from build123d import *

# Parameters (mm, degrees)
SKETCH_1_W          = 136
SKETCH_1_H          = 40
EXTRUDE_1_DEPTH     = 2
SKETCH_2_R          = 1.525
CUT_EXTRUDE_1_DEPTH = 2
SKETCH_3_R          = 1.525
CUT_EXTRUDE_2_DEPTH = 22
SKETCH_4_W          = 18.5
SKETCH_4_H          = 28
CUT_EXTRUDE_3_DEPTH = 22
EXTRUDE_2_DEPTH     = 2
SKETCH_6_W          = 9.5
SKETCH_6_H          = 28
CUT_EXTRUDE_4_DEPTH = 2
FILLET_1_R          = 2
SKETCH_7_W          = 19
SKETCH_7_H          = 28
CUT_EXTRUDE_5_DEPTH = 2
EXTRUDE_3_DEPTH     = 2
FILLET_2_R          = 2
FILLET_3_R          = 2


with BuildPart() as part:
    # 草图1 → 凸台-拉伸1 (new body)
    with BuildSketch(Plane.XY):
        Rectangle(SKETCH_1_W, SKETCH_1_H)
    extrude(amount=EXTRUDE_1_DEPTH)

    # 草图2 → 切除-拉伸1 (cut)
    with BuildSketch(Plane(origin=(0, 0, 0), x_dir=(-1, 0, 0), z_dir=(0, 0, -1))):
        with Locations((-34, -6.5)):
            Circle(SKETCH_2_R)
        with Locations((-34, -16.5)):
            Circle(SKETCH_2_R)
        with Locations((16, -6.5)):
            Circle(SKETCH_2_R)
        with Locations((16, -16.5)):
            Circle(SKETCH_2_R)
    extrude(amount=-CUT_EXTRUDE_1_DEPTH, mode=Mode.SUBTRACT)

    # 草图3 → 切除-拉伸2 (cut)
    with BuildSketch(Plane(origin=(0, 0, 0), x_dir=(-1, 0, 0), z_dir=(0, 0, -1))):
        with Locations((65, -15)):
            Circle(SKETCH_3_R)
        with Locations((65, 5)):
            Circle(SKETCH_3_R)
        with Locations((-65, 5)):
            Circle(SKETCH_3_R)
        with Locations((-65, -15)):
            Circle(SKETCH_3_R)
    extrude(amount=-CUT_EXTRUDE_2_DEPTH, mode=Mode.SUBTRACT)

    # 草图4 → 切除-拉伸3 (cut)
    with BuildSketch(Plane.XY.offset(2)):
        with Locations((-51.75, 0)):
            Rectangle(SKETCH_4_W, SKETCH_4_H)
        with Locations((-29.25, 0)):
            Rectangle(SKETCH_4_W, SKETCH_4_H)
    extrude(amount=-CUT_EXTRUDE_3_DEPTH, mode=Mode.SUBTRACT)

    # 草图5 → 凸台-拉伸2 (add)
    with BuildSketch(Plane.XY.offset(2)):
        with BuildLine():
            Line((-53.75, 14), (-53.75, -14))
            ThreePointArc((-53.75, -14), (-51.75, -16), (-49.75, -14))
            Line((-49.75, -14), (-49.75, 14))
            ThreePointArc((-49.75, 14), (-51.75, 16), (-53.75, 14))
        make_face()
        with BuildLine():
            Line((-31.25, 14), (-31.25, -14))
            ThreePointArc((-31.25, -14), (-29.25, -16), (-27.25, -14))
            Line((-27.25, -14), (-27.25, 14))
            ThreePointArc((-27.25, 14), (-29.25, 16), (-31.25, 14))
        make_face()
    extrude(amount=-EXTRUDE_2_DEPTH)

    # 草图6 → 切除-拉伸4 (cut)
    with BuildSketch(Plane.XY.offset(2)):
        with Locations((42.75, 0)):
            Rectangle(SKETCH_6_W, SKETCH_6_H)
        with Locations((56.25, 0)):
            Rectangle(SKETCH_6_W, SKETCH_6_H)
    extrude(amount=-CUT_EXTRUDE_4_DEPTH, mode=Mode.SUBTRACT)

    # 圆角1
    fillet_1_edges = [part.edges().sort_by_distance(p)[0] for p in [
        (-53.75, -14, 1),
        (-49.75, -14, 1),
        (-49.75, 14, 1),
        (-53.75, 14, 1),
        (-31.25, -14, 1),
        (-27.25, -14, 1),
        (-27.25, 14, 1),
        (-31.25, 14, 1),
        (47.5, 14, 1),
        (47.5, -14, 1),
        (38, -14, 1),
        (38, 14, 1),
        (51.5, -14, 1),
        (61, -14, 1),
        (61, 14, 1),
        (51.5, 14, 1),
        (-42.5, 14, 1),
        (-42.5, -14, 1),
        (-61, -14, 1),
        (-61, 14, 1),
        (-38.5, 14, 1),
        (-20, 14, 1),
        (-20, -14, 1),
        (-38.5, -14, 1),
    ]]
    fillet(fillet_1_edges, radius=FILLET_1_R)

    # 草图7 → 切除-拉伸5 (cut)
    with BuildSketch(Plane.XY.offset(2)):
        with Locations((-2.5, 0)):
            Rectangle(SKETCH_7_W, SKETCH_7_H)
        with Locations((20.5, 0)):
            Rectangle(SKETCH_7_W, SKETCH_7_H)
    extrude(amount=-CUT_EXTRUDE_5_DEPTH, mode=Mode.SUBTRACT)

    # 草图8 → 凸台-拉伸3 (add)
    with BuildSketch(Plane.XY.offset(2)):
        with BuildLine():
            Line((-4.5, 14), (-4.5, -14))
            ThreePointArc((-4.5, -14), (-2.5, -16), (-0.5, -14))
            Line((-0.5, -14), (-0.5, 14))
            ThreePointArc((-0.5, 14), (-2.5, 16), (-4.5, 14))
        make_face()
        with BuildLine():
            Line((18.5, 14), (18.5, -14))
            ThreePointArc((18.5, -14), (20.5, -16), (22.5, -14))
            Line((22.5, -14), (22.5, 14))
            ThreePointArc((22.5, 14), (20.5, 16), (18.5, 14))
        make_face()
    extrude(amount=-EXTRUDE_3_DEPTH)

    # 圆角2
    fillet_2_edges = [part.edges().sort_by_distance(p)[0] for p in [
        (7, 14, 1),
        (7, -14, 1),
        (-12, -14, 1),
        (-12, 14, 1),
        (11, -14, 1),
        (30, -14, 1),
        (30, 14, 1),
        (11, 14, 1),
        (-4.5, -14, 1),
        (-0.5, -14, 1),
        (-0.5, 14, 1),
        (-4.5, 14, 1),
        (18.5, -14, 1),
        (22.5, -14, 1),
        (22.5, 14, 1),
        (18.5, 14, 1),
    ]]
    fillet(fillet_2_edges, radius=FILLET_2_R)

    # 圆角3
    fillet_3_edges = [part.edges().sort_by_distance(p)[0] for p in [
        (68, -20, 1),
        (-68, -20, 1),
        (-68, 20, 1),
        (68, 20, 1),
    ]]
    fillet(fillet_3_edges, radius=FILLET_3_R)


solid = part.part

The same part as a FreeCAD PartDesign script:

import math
import FreeCAD as App
import Part
import Sketcher

V = App.Vector
Q = App.Units.Quantity


def edges_at(feature, points):
    """Names of the edges that pass closest to the given points."""
    edges = feature.Shape.Edges
    near = lambda p: min(range(len(edges)), key=lambda i: edges[i].distToShape(Part.Vertex(*p))[0])
    return sorted({f"Edge{near(p) + 1}" for p in points})

doc = App.newDocument("Part")
params = doc.addObject("Spreadsheet::Sheet", "Params")
for row, (alias, value) in enumerate([
    ("sketch1_width", "136 mm"),
    ("sketch1_height", "40 mm"),
    ("pad1_length", "2 mm"),
    ("sketch2_diameter", "3.05 mm"),
    ("pocket1_length", "2 mm"),
    ("sketch3_diameter", "3.05 mm"),
    ("pocket2_length", "22 mm"),
    ("sketch4_height", "28 mm"),
    ("sketch4_width", "18.5 mm"),
    ("pocket3_length", "22 mm"),
    ("sketch5_radius", "2 mm"),
    ("sketch5_height", "28 mm"),
    ("pad2_length", "2 mm"),
    ("sketch6_height", "28 mm"),
    ("sketch6_width", "9.5 mm"),
    ("pocket4_length", "2 mm"),
    ("fillet_radius", "2 mm"),
    ("sketch7_width", "19 mm"),
    ("sketch7_height", "28 mm"),
    ("pocket5_length", "2 mm"),
    ("sketch8_radius", "2 mm"),
    ("sketch8_height", "28 mm"),
    ("pad3_length", "2 mm"),
    ("fillet2_radius", "2 mm"),
    ("fillet3_radius", "2 mm"),
], start=1):
    params.set(f"A{row}", alias)
    params.set(f"B{row}", "=" + value)
    params.setAlias(f"B{row}", alias)

body = doc.addObject("PartDesign::Body", "Body")

sketch1 = body.newObject("Sketcher::SketchObject", "Sketch")
sketch1.AttachmentSupport = (doc.getObject("XY_Plane"), [""])
sketch1.MapMode = "FlatFace"
sketch1.addGeometry([
    Part.LineSegment(V(-68, 20, 0), V(-68, -20, 0)),
    Part.LineSegment(V(-68, -20, 0), V(68, -20, 0)),
    Part.LineSegment(V(68, -20, 0), V(68, 20, 0)),
    Part.LineSegment(V(68, 20, 0), V(-68, 20, 0)),
], False)
sketch1.addConstraint([
    Sketcher.Constraint("Coincident", 0, 2, 1, 1),
    Sketcher.Constraint("Coincident", 1, 2, 2, 1),
    Sketcher.Constraint("Coincident", 2, 2, 3, 1),
    Sketcher.Constraint("Coincident", 3, 2, 0, 1),
    Sketcher.Constraint("Vertical", 0),
    Sketcher.Constraint("Horizontal", 1),
    Sketcher.Constraint("Vertical", 2),
    Sketcher.Constraint("Horizontal", 3),
    Sketcher.Constraint("Symmetric", 0, 2, 2, 2, -1, 1),
    Sketcher.Constraint("DistanceX", 1, 1, 1, 2, Q("136 mm")),
    Sketcher.Constraint("DistanceY", 0, 2, 0, 1, Q("40 mm")),
])
sketch1.setExpression("Constraints[9]", "Params.sketch1_width")
sketch1.setExpression("Constraints[10]", "Params.sketch1_height")
pad1 = body.newObject("PartDesign::Pad", "Pad")
pad1.Profile = sketch1
pad1.setExpression("Length", "Params.pad1_length")

sketch2 = body.newObject("Sketcher::SketchObject", "Sketch001")
sketch2.AttachmentSupport = (doc.getObject("XY_Plane"), [""])
sketch2.MapMode = "FlatFace"
sketch2.addGeometry([
    Part.Circle(V(34, -6.5, 0), V(0, 0, 1), 1.525),
    Part.Circle(V(34, -16.5, 0), V(0, 0, 1), 1.525),
    Part.Circle(V(-16, -6.5, 0), V(0, 0, 1), 1.525),
    Part.Circle(V(-16, -16.5, 0), V(0, 0, 1), 1.525),
], False)
sketch2.addConstraint([
    Sketcher.Constraint("Equal", 0, 1),
    Sketcher.Constraint("Equal", 1, 2),
    Sketcher.Constraint("Equal", 2, 3),
    Sketcher.Constraint("Horizontal", 0, 3, 2, 3),
    Sketcher.Constraint("Horizontal", 1, 3, 3, 3),
    Sketcher.Constraint("Vertical", 0, 3, 1, 3),
    Sketcher.Constraint("Vertical", 2, 3, 3, 3),
    Sketcher.Constraint("Diameter", 0, Q("3.05 mm")),
    Sketcher.Constraint("DistanceX", -1, 1, 0, 3, Q("34 mm")),
    Sketcher.Constraint("DistanceX", 2, 3, -1, 1, Q("16 mm")),
    Sketcher.Constraint("DistanceY", 1, 3, 0, 3, Q("10 mm")),
    Sketcher.Constraint("DistanceY", 0, 3, -1, 1, Q("6.5 mm")),
])
sketch2.setExpression("Constraints[7]", "Params.sketch2_diameter")
pocket1 = body.newObject("PartDesign::Pocket", "Pocket")
pocket1.Profile = sketch2
pocket1.setExpression("Length", "Params.pocket1_length")
pocket1.Reversed = True

sketch3 = body.newObject("Sketcher::SketchObject", "Sketch002")
sketch3.AttachmentSupport = (doc.getObject("XY_Plane"), [""])
sketch3.MapMode = "FlatFace"
sketch3.addGeometry([
    Part.Circle(V(-65, -15, 0), V(0, 0, 1), 1.525),
    Part.Circle(V(-65, 5, 0), V(0, 0, 1), 1.525),
    Part.Circle(V(65, 5, 0), V(0, 0, 1), 1.525),
    Part.Circle(V(65, -15, 0), V(0, 0, 1), 1.525),
], False)
sketch3.addConstraint([
    Sketcher.Constraint("Equal", 0, 1),
    Sketcher.Constraint("Equal", 1, 2),
    Sketcher.Constraint("Equal", 2, 3),
    Sketcher.Constraint("Symmetric", 1, 3, 2, 3, -2),
    Sketcher.Constraint("Symmetric", 0, 3, 3, 3, -2),
    Sketcher.Constraint("Vertical", 0, 3, 1, 3),
    Sketcher.Constraint("Diameter", 0, Q("3.05 mm")),
    Sketcher.Constraint("DistanceX", 0, 3, -1, 1, Q("65 mm")),
    Sketcher.Constraint("DistanceY", 0, 3, -1, 1, Q("15 mm")),
    Sketcher.Constraint("DistanceY", -1, 1, 1, 3, Q("5 mm")),
])
sketch3.setExpression("Constraints[6]", "Params.sketch3_diameter")
pocket2 = body.newObject("PartDesign::Pocket", "Pocket001")
pocket2.Profile = sketch3
pocket2.setExpression("Length", "Params.pocket2_length")
pocket2.Reversed = True

sketch4 = body.newObject("Sketcher::SketchObject", "Sketch003")
sketch4.AttachmentSupport = (doc.getObject("XY_Plane"), [""])
sketch4.MapMode = "FlatFace"
sketch4.AttachmentOffset = App.Placement(V(0, 0, 2), App.Rotation())
sketch4.addGeometry([
    Part.LineSegment(V(-61, 14, 0), V(-61, -14, 0)),
    Part.LineSegment(V(-61, -14, 0), V(-42.5, -14, 0)),
    Part.LineSegment(V(-42.5, -14, 0), V(-42.5, 14, 0)),
    Part.LineSegment(V(-42.5, 14, 0), V(-61, 14, 0)),
    Part.LineSegment(V(-38.5, 14, 0), V(-38.5, -14, 0)),
    Part.LineSegment(V(-38.5, -14, 0), V(-20, -14, 0)),
    Part.LineSegment(V(-20, -14, 0), V(-20, 14, 0)),
    Part.LineSegment(V(-20, 14, 0), V(-38.5, 14, 0)),
], False)
sketch4.addConstraint([
    Sketcher.Constraint("Coincident", 0, 2, 1, 1),
    Sketcher.Constraint("Coincident", 1, 2, 2, 1),
    Sketcher.Constraint("Coincident", 2, 2, 3, 1),
    Sketcher.Constraint("Coincident", 3, 2, 0, 1),
    Sketcher.Constraint("Coincident", 4, 2, 5, 1),
    Sketcher.Constraint("Coincident", 5, 2, 6, 1),
    Sketcher.Constraint("Coincident", 6, 2, 7, 1),
    Sketcher.Constraint("Coincident", 7, 2, 4, 1),
    Sketcher.Constraint("Vertical", 0),
    Sketcher.Constraint("Horizontal", 1),
    Sketcher.Constraint("Vertical", 2),
    Sketcher.Constraint("Horizontal", 3),
    Sketcher.Constraint("Vertical", 4),
    Sketcher.Constraint("Horizontal", 5),
    Sketcher.Constraint("Vertical", 6),
    Sketcher.Constraint("Horizontal", 7),
    Sketcher.Constraint("Horizontal", 1, 2, 4, 2),
    Sketcher.Constraint("Horizontal", 3, 2, 6, 2),
    Sketcher.Constraint("Equal", 3, 5),
    Sketcher.Constraint("DistanceY", 0, 2, 0, 1, Q("28 mm")),
    Sketcher.Constraint("DistanceX", 1, 1, 1, 2, Q("18.5 mm")),
    Sketcher.Constraint("DistanceX", 0, 2, -1, 1, Q("61 mm")),
    Sketcher.Constraint("DistanceY", 0, 2, -1, 1, Q("14 mm")),
    Sketcher.Constraint("DistanceX", 5, 2, -1, 1, Q("20 mm")),
])
sketch4.setExpression("Constraints[19]", "Params.sketch4_height")
sketch4.setExpression("Constraints[20]", "Params.sketch4_width")
pocket3 = body.newObject("PartDesign::Pocket", "Pocket002")
pocket3.Profile = sketch4
pocket3.setExpression("Length", "Params.pocket3_length")

sketch5 = body.newObject("Sketcher::SketchObject", "Sketch004")
sketch5.AttachmentSupport = (doc.getObject("XY_Plane"), [""])
sketch5.MapMode = "FlatFace"
sketch5.AttachmentOffset = App.Placement(V(0, 0, 2), App.Rotation())
sketch5.addGeometry([
    Part.LineSegment(V(-53.75, 14, 0), V(-53.75, -14, 0)),
    Part.ArcOfCircle(Part.Circle(V(-51.75, -14, 0), V(0, 0, 1), 2), math.radians(180), math.radians(360)),
    Part.LineSegment(V(-49.75, -14, 0), V(-49.75, 14, 0)),
    Part.ArcOfCircle(Part.Circle(V(-51.75, 14, 0), V(0, 0, 1), 2), math.radians(0), math.radians(180)),
    Part.LineSegment(V(-31.25, 14, 0), V(-31.25, -14, 0)),
    Part.ArcOfCircle(Part.Circle(V(-29.25, -14, 0), V(0, 0, 1), 2), math.radians(180), math.radians(360)),
    Part.LineSegment(V(-27.25, -14, 0), V(-27.25, 14, 0)),
    Part.ArcOfCircle(Part.Circle(V(-29.25, 14, 0), V(0, 0, 1), 2), math.radians(0), math.radians(180)),
], False)
sketch5.addConstraint([
    Sketcher.Constraint("Tangent", 0, 2, 1, 1),
    Sketcher.Constraint("Tangent", 1, 2, 2, 1),
    Sketcher.Constraint("Tangent", 2, 2, 3, 1),
    Sketcher.Constraint("Tangent", 3, 2, 0, 1),
    Sketcher.Constraint("Tangent", 4, 2, 5, 1),
    Sketcher.Constraint("Tangent", 5, 2, 6, 1),
    Sketcher.Constraint("Tangent", 6, 2, 7, 1),
    Sketcher.Constraint("Tangent", 7, 2, 4, 1),
    Sketcher.Constraint("Vertical", 0),
    Sketcher.Constraint("Vertical", 2),
    Sketcher.Constraint("Vertical", 4),
    Sketcher.Constraint("Vertical", 6),
    Sketcher.Constraint("Equal", 3, 5),
    Sketcher.Constraint("Horizontal", 1, 3, 5, 3),
    Sketcher.Constraint("Horizontal", 3, 3, 7, 3),
    Sketcher.Constraint("Radius", 1, Q("2 mm")),
    Sketcher.Constraint("DistanceY", 0, 2, 0, 1, Q("28 mm")),
    Sketcher.Constraint("DistanceY", 1, 3, -1, 1, Q("14 mm")),
    Sketcher.Constraint("DistanceX", 1, 3, 5, 3, Q("22.5 mm")),
    Sketcher.Constraint("DistanceX", 1, 3, -1, 1, Q("51.75 mm")),
])
sketch5.setExpression("Constraints[15]", "Params.sketch5_radius")
sketch5.setExpression("Constraints[16]", "Params.sketch5_height")
pad2 = body.newObject("PartDesign::Pad", "Pad001")
pad2.Profile = sketch5
pad2.setExpression("Length", "Params.pad2_length")
pad2.Reversed = True

sketch6 = body.newObject("Sketcher::SketchObject", "Sketch005")
sketch6.AttachmentSupport = (doc.getObject("XY_Plane"), [""])
sketch6.MapMode = "FlatFace"
sketch6.AttachmentOffset = App.Placement(V(0, 0, 2), App.Rotation())
sketch6.addGeometry([
    Part.LineSegment(V(38, 14, 0), V(38, -14, 0)),
    Part.LineSegment(V(38, -14, 0), V(47.5, -14, 0)),
    Part.LineSegment(V(47.5, -14, 0), V(47.5, 14, 0)),
    Part.LineSegment(V(47.5, 14, 0), V(38, 14, 0)),
    Part.LineSegment(V(51.5, 14, 0), V(51.5, -14, 0)),
    Part.LineSegment(V(51.5, -14, 0), V(61, -14, 0)),
    Part.LineSegment(V(61, -14, 0), V(61, 14, 0)),
    Part.LineSegment(V(61, 14, 0), V(51.5, 14, 0)),
], False)
sketch6.addConstraint([
    Sketcher.Constraint("Coincident", 0, 2, 1, 1),
    Sketcher.Constraint("Coincident", 1, 2, 2, 1),
    Sketcher.Constraint("Coincident", 2, 2, 3, 1),
    Sketcher.Constraint("Coincident", 3, 2, 0, 1),
    Sketcher.Constraint("Coincident", 4, 2, 5, 1),
    Sketcher.Constraint("Coincident", 5, 2, 6, 1),
    Sketcher.Constraint("Coincident", 6, 2, 7, 1),
    Sketcher.Constraint("Coincident", 7, 2, 4, 1),
    Sketcher.Constraint("Vertical", 0),
    Sketcher.Constraint("Horizontal", 1),
    Sketcher.Constraint("Vertical", 2),
    Sketcher.Constraint("Horizontal", 3),
    Sketcher.Constraint("Vertical", 4),
    Sketcher.Constraint("Horizontal", 5),
    Sketcher.Constraint("Vertical", 6),
    Sketcher.Constraint("Horizontal", 7),
    Sketcher.Constraint("Horizontal", 1, 2, 4, 2),
    Sketcher.Constraint("Horizontal", 3, 2, 6, 2),
    Sketcher.Constraint("Equal", 3, 5),
    Sketcher.Constraint("DistanceY", 0, 2, 0, 1, Q("28 mm")),
    Sketcher.Constraint("DistanceX", 1, 1, 1, 2, Q("9.5 mm")),
    Sketcher.Constraint("DistanceX", -1, 1, 0, 2, Q("38 mm")),
    Sketcher.Constraint("DistanceY", 0, 2, -1, 1, Q("14 mm")),
    Sketcher.Constraint("DistanceX", -1, 1, 5, 2, Q("61 mm")),
])
sketch6.setExpression("Constraints[19]", "Params.sketch6_height")
sketch6.setExpression("Constraints[20]", "Params.sketch6_width")
pocket4 = body.newObject("PartDesign::Pocket", "Pocket003")
pocket4.Profile = sketch6
pocket4.setExpression("Length", "Params.pocket4_length")
doc.recompute()

fillet = body.newObject("PartDesign::Fillet", "Fillet")
fillet.Base = (pocket4, edges_at(pocket4, [
    (-53.75, -14, 1),
    (-49.75, -14, 1),
    (-49.75, 14, 1),
    (-53.75, 14, 1),
    (-31.25, -14, 1),
    (-27.25, -14, 1),
    (-27.25, 14, 1),
    (-31.25, 14, 1),
    (47.5, 14, 1),
    (47.5, -14, 1),
    (38, -14, 1),
    (38, 14, 1),
    (51.5, -14, 1),
    (61, -14, 1),
    (61, 14, 1),
    (51.5, 14, 1),
    (-42.5, 14, 1),
    (-42.5, -14, 1),
    (-61, -14, 1),
    (-61, 14, 1),
    (-38.5, 14, 1),
    (-20, 14, 1),
    (-20, -14, 1),
    (-38.5, -14, 1),
]))
fillet.setExpression("Radius", "Params.fillet_radius")

sketch7 = body.newObject("Sketcher::SketchObject", "Sketch006")
sketch7.AttachmentSupport = (doc.getObject("XY_Plane"), [""])
sketch7.MapMode = "FlatFace"
sketch7.AttachmentOffset = App.Placement(V(0, 0, 2), App.Rotation())
sketch7.addGeometry([
    Part.LineSegment(V(-12, 14, 0), V(-12, -14, 0)),
    Part.LineSegment(V(-12, -14, 0), V(7, -14, 0)),
    Part.LineSegment(V(7, -14, 0), V(7, 14, 0)),
    Part.LineSegment(V(7, 14, 0), V(-12, 14, 0)),
    Part.LineSegment(V(11, 14, 0), V(11, -14, 0)),
    Part.LineSegment(V(11, -14, 0), V(30, -14, 0)),
    Part.LineSegment(V(30, -14, 0), V(30, 14, 0)),
    Part.LineSegment(V(30, 14, 0), V(11, 14, 0)),
], False)
sketch7.addConstraint([
    Sketcher.Constraint("Coincident", 0, 2, 1, 1),
    Sketcher.Constraint("Coincident", 1, 2, 2, 1),
    Sketcher.Constraint("Coincident", 2, 2, 3, 1),
    Sketcher.Constraint("Coincident", 3, 2, 0, 1),
    Sketcher.Constraint("Coincident", 4, 2, 5, 1),
    Sketcher.Constraint("Coincident", 5, 2, 6, 1),
    Sketcher.Constraint("Coincident", 6, 2, 7, 1),
    Sketcher.Constraint("Coincident", 7, 2, 4, 1),
    Sketcher.Constraint("Vertical", 0),
    Sketcher.Constraint("Horizontal", 1),
    Sketcher.Constraint("Vertical", 2),
    Sketcher.Constraint("Horizontal", 3),
    Sketcher.Constraint("Vertical", 4),
    Sketcher.Constraint("Horizontal", 5),
    Sketcher.Constraint("Vertical", 6),
    Sketcher.Constraint("Horizontal", 7),
    Sketcher.Constraint("Horizontal", 1, 2, 4, 2),
    Sketcher.Constraint("Horizontal", 3, 2, 6, 2),
    Sketcher.Constraint("Equal", 3, 5),
    Sketcher.Constraint("DistanceX", 1, 1, 1, 2, Q("19 mm")),
    Sketcher.Constraint("DistanceY", 0, 2, 0, 1, Q("28 mm")),
    Sketcher.Constraint("DistanceX", 0, 2, -1, 1, Q("12 mm")),
    Sketcher.Constraint("DistanceY", 0, 2, -1, 1, Q("14 mm")),
    Sketcher.Constraint("DistanceX", -1, 1, 4, 2, Q("11 mm")),
])
sketch7.setExpression("Constraints[19]", "Params.sketch7_width")
sketch7.setExpression("Constraints[20]", "Params.sketch7_height")
pocket5 = body.newObject("PartDesign::Pocket", "Pocket004")
pocket5.Profile = sketch7
pocket5.setExpression("Length", "Params.pocket5_length")

sketch8 = body.newObject("Sketcher::SketchObject", "Sketch007")
sketch8.AttachmentSupport = (doc.getObject("XY_Plane"), [""])
sketch8.MapMode = "FlatFace"
sketch8.AttachmentOffset = App.Placement(V(0, 0, 2), App.Rotation())
sketch8.addGeometry([
    Part.LineSegment(V(-4.5, 14, 0), V(-4.5, -14, 0)),
    Part.ArcOfCircle(Part.Circle(V(-2.5, -14, 0), V(0, 0, 1), 2), math.radians(180), math.radians(360)),
    Part.LineSegment(V(-0.5, -14, 0), V(-0.5, 14, 0)),
    Part.ArcOfCircle(Part.Circle(V(-2.5, 14, 0), V(0, 0, 1), 2), math.radians(0), math.radians(180)),
    Part.LineSegment(V(18.5, 14, 0), V(18.5, -14, 0)),
    Part.ArcOfCircle(Part.Circle(V(20.5, -14, 0), V(0, 0, 1), 2), math.radians(180), math.radians(360)),
    Part.LineSegment(V(22.5, -14, 0), V(22.5, 14, 0)),
    Part.ArcOfCircle(Part.Circle(V(20.5, 14, 0), V(0, 0, 1), 2), math.radians(0), math.radians(180)),
], False)
sketch8.addConstraint([
    Sketcher.Constraint("Tangent", 0, 2, 1, 1),
    Sketcher.Constraint("Tangent", 1, 2, 2, 1),
    Sketcher.Constraint("Tangent", 2, 2, 3, 1),
    Sketcher.Constraint("Tangent", 3, 2, 0, 1),
    Sketcher.Constraint("Tangent", 4, 2, 5, 1),
    Sketcher.Constraint("Tangent", 5, 2, 6, 1),
    Sketcher.Constraint("Tangent", 6, 2, 7, 1),
    Sketcher.Constraint("Tangent", 7, 2, 4, 1),
    Sketcher.Constraint("Vertical", 0),
    Sketcher.Constraint("Vertical", 2),
    Sketcher.Constraint("Vertical", 4),
    Sketcher.Constraint("Vertical", 6),
    Sketcher.Constraint("Equal", 3, 5),
    Sketcher.Constraint("Horizontal", 1, 3, 5, 3),
    Sketcher.Constraint("Horizontal", 3, 3, 7, 3),
    Sketcher.Constraint("Radius", 1, Q("2 mm")),
    Sketcher.Constraint("DistanceY", 0, 2, 0, 1, Q("28 mm")),
    Sketcher.Constraint("DistanceY", 1, 3, -1, 1, Q("14 mm")),
    Sketcher.Constraint("DistanceX", 1, 3, 5, 3, Q("23 mm")),
    Sketcher.Constraint("DistanceX", 1, 3, -1, 1, Q("2.5 mm")),
])
sketch8.setExpression("Constraints[15]", "Params.sketch8_radius")
sketch8.setExpression("Constraints[16]", "Params.sketch8_height")
pad3 = body.newObject("PartDesign::Pad", "Pad002")
pad3.Profile = sketch8
pad3.setExpression("Length", "Params.pad3_length")
pad3.Reversed = True
doc.recompute()

fillet2 = body.newObject("PartDesign::Fillet", "Fillet001")
fillet2.Base = (pad3, edges_at(pad3, [
    (7, 14, 1),
    (7, -14, 1),
    (-12, -14, 1),
    (-12, 14, 1),
    (11, -14, 1),
    (30, -14, 1),
    (30, 14, 1),
    (11, 14, 1),
    (-4.5, -14, 1),
    (-0.5, -14, 1),
    (-0.5, 14, 1),
    (-4.5, 14, 1),
    (18.5, -14, 1),
    (22.5, -14, 1),
    (22.5, 14, 1),
    (18.5, 14, 1),
]))
fillet2.setExpression("Radius", "Params.fillet2_radius")
doc.recompute()

fillet3 = body.newObject("PartDesign::Fillet", "Fillet002")
fillet3.Base = (fillet2, edges_at(fillet2, [
    (68, -20, 1),
    (-68, -20, 1),
    (-68, 20, 1),
    (68, 20, 1),
]))
fillet3.setExpression("Radius", "Params.fillet3_radius")

doc.recompute()
